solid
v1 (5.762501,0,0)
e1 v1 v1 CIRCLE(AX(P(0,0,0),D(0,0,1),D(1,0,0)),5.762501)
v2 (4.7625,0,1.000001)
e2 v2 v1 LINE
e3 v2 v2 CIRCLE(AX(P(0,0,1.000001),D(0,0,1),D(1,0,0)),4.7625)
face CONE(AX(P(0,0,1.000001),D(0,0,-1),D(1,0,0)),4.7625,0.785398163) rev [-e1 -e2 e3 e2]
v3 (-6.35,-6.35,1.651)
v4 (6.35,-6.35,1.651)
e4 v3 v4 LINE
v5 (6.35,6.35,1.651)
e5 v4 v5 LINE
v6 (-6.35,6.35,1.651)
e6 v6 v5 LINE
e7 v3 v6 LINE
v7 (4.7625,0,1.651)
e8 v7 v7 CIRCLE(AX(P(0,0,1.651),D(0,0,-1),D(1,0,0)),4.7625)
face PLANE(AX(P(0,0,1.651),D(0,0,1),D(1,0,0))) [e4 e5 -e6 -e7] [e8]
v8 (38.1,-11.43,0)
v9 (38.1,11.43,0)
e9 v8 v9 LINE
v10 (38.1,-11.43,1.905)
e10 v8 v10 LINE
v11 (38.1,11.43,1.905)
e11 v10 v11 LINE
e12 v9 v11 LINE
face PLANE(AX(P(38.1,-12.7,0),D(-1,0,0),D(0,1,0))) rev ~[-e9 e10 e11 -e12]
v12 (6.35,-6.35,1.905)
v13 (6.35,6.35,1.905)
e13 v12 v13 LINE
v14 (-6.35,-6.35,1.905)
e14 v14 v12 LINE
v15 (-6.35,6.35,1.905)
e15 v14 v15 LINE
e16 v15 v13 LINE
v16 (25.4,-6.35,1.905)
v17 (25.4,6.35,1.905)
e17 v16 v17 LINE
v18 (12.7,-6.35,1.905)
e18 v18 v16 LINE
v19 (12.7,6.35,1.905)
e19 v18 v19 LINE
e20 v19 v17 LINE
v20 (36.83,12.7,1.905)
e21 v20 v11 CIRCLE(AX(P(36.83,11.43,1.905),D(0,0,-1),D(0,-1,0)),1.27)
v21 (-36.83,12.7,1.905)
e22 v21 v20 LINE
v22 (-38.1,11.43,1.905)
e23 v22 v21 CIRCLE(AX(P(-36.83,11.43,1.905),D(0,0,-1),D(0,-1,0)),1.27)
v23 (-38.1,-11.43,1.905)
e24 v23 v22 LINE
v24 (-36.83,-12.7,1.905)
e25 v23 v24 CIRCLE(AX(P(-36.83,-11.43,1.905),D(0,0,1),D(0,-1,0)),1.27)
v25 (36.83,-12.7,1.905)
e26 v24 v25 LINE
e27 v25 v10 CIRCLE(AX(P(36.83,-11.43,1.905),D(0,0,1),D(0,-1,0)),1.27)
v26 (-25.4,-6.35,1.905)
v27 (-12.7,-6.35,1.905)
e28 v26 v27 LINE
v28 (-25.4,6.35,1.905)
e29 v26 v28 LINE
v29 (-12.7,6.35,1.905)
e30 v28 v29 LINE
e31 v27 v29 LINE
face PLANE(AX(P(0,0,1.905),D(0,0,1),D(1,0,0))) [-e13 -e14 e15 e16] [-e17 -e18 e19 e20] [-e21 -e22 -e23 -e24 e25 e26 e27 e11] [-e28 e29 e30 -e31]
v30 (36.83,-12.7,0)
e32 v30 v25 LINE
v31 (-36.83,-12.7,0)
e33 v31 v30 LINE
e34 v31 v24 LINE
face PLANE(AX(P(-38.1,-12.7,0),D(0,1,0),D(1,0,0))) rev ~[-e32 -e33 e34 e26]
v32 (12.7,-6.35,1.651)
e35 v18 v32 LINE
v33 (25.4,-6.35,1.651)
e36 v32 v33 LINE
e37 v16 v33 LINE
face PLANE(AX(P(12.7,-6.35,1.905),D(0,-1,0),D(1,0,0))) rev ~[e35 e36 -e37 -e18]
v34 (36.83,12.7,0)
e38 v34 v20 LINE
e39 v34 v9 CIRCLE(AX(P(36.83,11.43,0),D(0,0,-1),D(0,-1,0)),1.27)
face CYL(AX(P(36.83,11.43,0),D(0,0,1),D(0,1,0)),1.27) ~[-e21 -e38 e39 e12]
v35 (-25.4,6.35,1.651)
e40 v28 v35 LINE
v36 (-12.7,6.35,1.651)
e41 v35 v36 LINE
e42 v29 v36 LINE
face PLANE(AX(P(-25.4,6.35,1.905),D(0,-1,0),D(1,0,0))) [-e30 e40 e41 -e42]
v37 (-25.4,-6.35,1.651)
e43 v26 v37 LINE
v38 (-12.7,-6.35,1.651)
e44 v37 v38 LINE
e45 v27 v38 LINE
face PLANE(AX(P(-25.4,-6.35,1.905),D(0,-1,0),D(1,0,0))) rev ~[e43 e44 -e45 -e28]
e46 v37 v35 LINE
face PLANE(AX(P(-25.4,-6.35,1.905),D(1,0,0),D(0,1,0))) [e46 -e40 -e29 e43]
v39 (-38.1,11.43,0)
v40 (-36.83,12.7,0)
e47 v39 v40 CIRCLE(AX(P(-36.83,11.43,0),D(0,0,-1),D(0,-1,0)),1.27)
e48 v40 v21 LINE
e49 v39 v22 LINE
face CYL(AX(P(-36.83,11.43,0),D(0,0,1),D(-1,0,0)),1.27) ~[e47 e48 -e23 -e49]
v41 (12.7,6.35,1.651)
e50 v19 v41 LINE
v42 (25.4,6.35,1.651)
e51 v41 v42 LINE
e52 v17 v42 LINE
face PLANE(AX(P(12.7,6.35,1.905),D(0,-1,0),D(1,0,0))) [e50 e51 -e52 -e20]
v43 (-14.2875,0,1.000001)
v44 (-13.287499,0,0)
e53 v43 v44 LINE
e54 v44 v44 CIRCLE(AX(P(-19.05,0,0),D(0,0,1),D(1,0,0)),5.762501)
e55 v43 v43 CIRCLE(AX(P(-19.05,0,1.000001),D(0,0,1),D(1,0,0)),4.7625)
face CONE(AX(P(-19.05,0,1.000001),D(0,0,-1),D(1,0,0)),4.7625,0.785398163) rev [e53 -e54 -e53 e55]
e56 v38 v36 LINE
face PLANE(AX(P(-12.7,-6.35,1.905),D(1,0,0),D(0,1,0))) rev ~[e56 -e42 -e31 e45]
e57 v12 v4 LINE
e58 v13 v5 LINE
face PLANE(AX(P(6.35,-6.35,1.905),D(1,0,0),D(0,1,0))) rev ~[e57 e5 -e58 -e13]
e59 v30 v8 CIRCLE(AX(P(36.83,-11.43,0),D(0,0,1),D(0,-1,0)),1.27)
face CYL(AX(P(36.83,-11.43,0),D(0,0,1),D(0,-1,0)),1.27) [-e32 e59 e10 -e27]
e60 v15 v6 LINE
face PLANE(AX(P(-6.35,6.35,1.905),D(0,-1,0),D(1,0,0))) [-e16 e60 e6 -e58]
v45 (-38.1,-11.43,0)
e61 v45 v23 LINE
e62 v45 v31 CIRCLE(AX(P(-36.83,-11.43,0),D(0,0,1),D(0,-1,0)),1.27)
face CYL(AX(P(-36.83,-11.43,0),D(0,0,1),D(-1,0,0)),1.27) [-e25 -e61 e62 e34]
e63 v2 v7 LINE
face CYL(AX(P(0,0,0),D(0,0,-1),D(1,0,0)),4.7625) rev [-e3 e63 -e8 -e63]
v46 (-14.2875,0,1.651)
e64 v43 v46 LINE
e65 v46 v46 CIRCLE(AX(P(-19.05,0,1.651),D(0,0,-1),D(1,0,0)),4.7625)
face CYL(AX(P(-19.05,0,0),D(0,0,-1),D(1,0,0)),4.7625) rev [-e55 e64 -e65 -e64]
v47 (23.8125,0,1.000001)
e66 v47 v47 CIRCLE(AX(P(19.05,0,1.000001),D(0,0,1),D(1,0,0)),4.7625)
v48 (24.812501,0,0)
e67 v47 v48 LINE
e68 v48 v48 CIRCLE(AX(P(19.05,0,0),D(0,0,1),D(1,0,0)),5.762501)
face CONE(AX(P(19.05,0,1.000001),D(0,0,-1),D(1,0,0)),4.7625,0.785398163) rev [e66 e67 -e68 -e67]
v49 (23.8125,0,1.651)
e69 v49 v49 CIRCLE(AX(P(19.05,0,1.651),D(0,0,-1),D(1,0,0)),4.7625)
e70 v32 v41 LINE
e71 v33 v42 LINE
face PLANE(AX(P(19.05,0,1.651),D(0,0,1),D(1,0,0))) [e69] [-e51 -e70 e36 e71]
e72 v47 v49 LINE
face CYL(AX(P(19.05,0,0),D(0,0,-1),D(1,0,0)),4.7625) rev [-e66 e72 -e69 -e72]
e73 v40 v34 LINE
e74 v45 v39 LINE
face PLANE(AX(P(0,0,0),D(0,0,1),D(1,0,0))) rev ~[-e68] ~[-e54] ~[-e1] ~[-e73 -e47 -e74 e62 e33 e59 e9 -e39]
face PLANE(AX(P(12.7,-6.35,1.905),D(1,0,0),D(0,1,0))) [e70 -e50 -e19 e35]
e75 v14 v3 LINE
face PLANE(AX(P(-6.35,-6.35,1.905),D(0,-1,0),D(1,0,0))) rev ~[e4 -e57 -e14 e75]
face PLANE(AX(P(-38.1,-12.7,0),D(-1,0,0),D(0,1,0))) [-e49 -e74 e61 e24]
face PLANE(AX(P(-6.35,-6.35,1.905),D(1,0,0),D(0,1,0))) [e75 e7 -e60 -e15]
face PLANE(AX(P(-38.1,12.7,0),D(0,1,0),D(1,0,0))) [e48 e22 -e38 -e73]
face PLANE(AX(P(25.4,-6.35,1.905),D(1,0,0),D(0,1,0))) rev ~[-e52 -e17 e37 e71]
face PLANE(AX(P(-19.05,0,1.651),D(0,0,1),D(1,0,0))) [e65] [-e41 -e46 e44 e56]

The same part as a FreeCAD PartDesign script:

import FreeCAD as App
import Part
import Sketcher
from FreeCAD import Vector
Q = App.Units.Quantity


def edges_at(feature, points):
    """Names of the edges that pass closest to the given points."""
    edges = feature.Shape.Edges
    near = lambda p: min(range(len(edges)), key=lambda i: edges[i].distToShape(Part.Vertex(*p))[0])
    return sorted({f"Edge{near(p) + 1}" for p in points})


def add_polygon(sketch, points):
    """Adds a closed chain of lines whose ends are joined by coincident constraints."""
    first, n = sketch.GeometryCount, len(points)
    for a, b in zip(points, points[1:] + points[:1]):
        sketch.addGeometry(Part.LineSegment(App.Vector(*a, 0), App.Vector(*b, 0)), False)
    for i in range(n):
        sketch.addConstraint(Sketcher.Constraint("Coincident", first + i, 2, first + (i + 1) % n, 1))

doc = App.newDocument("Part")
params = doc.addObject("Spreadsheet::Sheet", "Params")
for row, (alias, value) in enumerate([
    ("sketch1_width", "3 in"),
    ("sketch1_height", "1 in"),
    ("sketch1_diameter", "0.375 in"),
    ("pad1_length", "0.075 in"),
    ("chamfer_size", "1.000001 mm"),
    ("sketch2_width", "0.5 in"),
    ("pocket1_length", "0.01 in"),
    ("fillet_radius", "0.05 in"),
], start=1):
    params.set(f"A{row}", alias)
    params.set(f"B{row}", "=" + value)
    params.setAlias(f"B{row}", alias)

body = doc.addObject("PartDesign::Body", "Body")

# Sketch on XY plane
sketch1 = body.newObject("Sketcher::SketchObject", "Sketch")
sketch1.AttachmentSupport = (doc.getObject("XY_Plane"), [""])
sketch1.MapMode = "FlatFace"
add_polygon(sketch1, [(-38.1, 12.7), (-38.1, -12.7), (38.1, -12.7), (38.1, 12.7)])  # lines 0-3
sketch1.addGeometry(Part.Circle(Vector(-19.05, 0, 0), Vector(0, 0, 1), 4.7625), False)  # 4
sketch1.addGeometry(Part.Circle(Vector(0, 0, 0), Vector(0, 0, 1), 4.7625), False)  # 5
sketch1.addGeometry(Part.Circle(Vector(19.05, 0, 0), Vector(0, 0, 1), 4.7625), False)  # 6
sketch1.addConstraint(Sketcher.Constraint("Vertical", 0))
sketch1.addConstraint(Sketcher.Constraint("Horizontal", 1))
sketch1.addConstraint(Sketcher.Constraint("Vertical", 2))
sketch1.addConstraint(Sketcher.Constraint("Horizontal", 3))
sketch1.addConstraint(Sketcher.Constraint("Coincident", 5, 3, -1, 1))
sketch1.addConstraint(Sketcher.Constraint("Equal", 4, 5))
sketch1.addConstraint(Sketcher.Constraint("Equal", 5, 6))
sketch1.addConstraint(Sketcher.Constraint("Symmetric", 4, 3, 6, 3, -1, 1))
sketch1.addConstraint(Sketcher.Constraint("Symmetric", 0, 2, 2, 2, -1, 1))
sketch1.addConstraint(Sketcher.Constraint("PointOnObject", 4, 3, -1))
sketch1.addConstraint(Sketcher.Constraint("DistanceX", 1, 1, 1, 2, Q("3 in")))
sketch1.addConstraint(Sketcher.Constraint("DistanceY", 0, 2, 0, 1, Q("1 in")))
sketch1.addConstraint(Sketcher.Constraint("Diameter", 4, Q("0.375 in")))
sketch1.addConstraint(Sketcher.Constraint("DistanceX", 4, 3, 6, 3, Q("1.5 in")))
sketch1.setExpression("Constraints[14]", "Params.sketch1_width")
sketch1.setExpression("Constraints[15]", "Params.sketch1_height")
sketch1.setExpression("Constraints[16]", "Params.sketch1_diameter")
pad1 = body.newObject("PartDesign::Pad", "Pad")
pad1.Profile = sketch1
pad1.setExpression("Length", "Params.pad1_length")
doc.recompute()

chamfer = body.newObject("PartDesign::Chamfer", "Chamfer")
chamfer.Base = (pad1, edges_at(pad1, [(14.287, 0, 0), (-4.763, 0, 0), (-23.812, 0, 0)]))
chamfer.setExpression("Size", "Params.chamfer_size")

# Sketch on XY plane
sketch2 = body.newObject("Sketcher::SketchObject", "Sketch001")
sketch2.AttachmentSupport = (doc.getObject("XY_Plane"), [""])
sketch2.MapMode = "FlatFace"
sketch2.AttachmentOffset = App.Placement(Vector(0, 0, 0.075 * 25.4), App.Rotation())
add_polygon(sketch2, [(-6.35, 6.35), (-6.35, -6.35), (6.35, -6.35), (6.35, 6.35)])  # lines 0-3
add_polygon(sketch2, [(-25.4, 6.35), (-25.4, -6.35), (-12.7, -6.35), (-12.7, 6.35)])  # lines 4-7
add_polygon(sketch2, [(12.7, 6.35), (12.7, -6.35), (25.4, -6.35), (25.4, 6.35)])  # lines 8-11
sketch2.addConstraint(Sketcher.Constraint("Vertical", 0))
sketch2.addConstraint(Sketcher.Constraint("Horizontal", 1))
sketch2.addConstraint(Sketcher.Constraint("Vertical", 2))
sketch2.addConstraint(Sketcher.Constraint("Horizontal", 3))
sketch2.addConstraint(Sketcher.Constraint("Vertical", 4))
sketch2.addConstraint(Sketcher.Constraint("Horizontal", 5))
sketch2.addConstraint(Sketcher.Constraint("Vertical", 6))
sketch2.addConstraint(Sketcher.Constraint("Horizontal", 7))
sketch2.addConstraint(Sketcher.Constraint("Vertical", 8))
sketch2.addConstraint(Sketcher.Constraint("Horizontal", 9))
sketch2.addConstraint(Sketcher.Constraint("Vertical", 10))
sketch2.addConstraint(Sketcher.Constraint("Horizontal", 11))
sketch2.addConstraint(Sketcher.Constraint("Symmetric", 0, 2, 2, 2, -1, 1))
sketch2.addConstraint(Sketcher.Constraint("Symmetric", 6, 2, 8, 2, -1, 1))
sketch2.addConstraint(Sketcher.Constraint("Symmetric", 4, 2, 10, 2, -1, 1))
sketch2.addConstraint(Sketcher.Constraint("Horizontal", 1, 2, 4, 2))
sketch2.addConstraint(Sketcher.Constraint("Horizontal", 3, 2, 6, 2))
sketch2.addConstraint(Sketcher.Constraint("Equal", 3, 5))
sketch2.addConstraint(Sketcher.Constraint("Equal", 11, 0))
sketch2.addConstraint(Sketcher.Constraint("DistanceX", 1, 1, 1, 2, Q("0.5 in")))
sketch2.addConstraint(Sketcher.Constraint("DistanceX", 4, 2, -1, 1, Q("1 in")))
sketch2.setExpression("Constraints[31]", "Params.sketch2_width")
pocket1 = body.newObject("PartDesign::Pocket", "Pocket")
pocket1.Profile = sketch2
pocket1.setExpression("Length", "Params.pocket1_length")
doc.recompute()

fillet = body.newObject("PartDesign::Fillet", "Fillet")
fillet.Base = (pocket1, edges_at(pocket1, [
    (38.1, 12.7, 0.953),
    (38.1, -12.7, 0.953),
    (-38.1, 12.7, 0.953),
    (-38.1, -12.7, 0.953),
]))
fillet.setExpression("Radius", "Params.fillet_radius")

doc.recompute()
